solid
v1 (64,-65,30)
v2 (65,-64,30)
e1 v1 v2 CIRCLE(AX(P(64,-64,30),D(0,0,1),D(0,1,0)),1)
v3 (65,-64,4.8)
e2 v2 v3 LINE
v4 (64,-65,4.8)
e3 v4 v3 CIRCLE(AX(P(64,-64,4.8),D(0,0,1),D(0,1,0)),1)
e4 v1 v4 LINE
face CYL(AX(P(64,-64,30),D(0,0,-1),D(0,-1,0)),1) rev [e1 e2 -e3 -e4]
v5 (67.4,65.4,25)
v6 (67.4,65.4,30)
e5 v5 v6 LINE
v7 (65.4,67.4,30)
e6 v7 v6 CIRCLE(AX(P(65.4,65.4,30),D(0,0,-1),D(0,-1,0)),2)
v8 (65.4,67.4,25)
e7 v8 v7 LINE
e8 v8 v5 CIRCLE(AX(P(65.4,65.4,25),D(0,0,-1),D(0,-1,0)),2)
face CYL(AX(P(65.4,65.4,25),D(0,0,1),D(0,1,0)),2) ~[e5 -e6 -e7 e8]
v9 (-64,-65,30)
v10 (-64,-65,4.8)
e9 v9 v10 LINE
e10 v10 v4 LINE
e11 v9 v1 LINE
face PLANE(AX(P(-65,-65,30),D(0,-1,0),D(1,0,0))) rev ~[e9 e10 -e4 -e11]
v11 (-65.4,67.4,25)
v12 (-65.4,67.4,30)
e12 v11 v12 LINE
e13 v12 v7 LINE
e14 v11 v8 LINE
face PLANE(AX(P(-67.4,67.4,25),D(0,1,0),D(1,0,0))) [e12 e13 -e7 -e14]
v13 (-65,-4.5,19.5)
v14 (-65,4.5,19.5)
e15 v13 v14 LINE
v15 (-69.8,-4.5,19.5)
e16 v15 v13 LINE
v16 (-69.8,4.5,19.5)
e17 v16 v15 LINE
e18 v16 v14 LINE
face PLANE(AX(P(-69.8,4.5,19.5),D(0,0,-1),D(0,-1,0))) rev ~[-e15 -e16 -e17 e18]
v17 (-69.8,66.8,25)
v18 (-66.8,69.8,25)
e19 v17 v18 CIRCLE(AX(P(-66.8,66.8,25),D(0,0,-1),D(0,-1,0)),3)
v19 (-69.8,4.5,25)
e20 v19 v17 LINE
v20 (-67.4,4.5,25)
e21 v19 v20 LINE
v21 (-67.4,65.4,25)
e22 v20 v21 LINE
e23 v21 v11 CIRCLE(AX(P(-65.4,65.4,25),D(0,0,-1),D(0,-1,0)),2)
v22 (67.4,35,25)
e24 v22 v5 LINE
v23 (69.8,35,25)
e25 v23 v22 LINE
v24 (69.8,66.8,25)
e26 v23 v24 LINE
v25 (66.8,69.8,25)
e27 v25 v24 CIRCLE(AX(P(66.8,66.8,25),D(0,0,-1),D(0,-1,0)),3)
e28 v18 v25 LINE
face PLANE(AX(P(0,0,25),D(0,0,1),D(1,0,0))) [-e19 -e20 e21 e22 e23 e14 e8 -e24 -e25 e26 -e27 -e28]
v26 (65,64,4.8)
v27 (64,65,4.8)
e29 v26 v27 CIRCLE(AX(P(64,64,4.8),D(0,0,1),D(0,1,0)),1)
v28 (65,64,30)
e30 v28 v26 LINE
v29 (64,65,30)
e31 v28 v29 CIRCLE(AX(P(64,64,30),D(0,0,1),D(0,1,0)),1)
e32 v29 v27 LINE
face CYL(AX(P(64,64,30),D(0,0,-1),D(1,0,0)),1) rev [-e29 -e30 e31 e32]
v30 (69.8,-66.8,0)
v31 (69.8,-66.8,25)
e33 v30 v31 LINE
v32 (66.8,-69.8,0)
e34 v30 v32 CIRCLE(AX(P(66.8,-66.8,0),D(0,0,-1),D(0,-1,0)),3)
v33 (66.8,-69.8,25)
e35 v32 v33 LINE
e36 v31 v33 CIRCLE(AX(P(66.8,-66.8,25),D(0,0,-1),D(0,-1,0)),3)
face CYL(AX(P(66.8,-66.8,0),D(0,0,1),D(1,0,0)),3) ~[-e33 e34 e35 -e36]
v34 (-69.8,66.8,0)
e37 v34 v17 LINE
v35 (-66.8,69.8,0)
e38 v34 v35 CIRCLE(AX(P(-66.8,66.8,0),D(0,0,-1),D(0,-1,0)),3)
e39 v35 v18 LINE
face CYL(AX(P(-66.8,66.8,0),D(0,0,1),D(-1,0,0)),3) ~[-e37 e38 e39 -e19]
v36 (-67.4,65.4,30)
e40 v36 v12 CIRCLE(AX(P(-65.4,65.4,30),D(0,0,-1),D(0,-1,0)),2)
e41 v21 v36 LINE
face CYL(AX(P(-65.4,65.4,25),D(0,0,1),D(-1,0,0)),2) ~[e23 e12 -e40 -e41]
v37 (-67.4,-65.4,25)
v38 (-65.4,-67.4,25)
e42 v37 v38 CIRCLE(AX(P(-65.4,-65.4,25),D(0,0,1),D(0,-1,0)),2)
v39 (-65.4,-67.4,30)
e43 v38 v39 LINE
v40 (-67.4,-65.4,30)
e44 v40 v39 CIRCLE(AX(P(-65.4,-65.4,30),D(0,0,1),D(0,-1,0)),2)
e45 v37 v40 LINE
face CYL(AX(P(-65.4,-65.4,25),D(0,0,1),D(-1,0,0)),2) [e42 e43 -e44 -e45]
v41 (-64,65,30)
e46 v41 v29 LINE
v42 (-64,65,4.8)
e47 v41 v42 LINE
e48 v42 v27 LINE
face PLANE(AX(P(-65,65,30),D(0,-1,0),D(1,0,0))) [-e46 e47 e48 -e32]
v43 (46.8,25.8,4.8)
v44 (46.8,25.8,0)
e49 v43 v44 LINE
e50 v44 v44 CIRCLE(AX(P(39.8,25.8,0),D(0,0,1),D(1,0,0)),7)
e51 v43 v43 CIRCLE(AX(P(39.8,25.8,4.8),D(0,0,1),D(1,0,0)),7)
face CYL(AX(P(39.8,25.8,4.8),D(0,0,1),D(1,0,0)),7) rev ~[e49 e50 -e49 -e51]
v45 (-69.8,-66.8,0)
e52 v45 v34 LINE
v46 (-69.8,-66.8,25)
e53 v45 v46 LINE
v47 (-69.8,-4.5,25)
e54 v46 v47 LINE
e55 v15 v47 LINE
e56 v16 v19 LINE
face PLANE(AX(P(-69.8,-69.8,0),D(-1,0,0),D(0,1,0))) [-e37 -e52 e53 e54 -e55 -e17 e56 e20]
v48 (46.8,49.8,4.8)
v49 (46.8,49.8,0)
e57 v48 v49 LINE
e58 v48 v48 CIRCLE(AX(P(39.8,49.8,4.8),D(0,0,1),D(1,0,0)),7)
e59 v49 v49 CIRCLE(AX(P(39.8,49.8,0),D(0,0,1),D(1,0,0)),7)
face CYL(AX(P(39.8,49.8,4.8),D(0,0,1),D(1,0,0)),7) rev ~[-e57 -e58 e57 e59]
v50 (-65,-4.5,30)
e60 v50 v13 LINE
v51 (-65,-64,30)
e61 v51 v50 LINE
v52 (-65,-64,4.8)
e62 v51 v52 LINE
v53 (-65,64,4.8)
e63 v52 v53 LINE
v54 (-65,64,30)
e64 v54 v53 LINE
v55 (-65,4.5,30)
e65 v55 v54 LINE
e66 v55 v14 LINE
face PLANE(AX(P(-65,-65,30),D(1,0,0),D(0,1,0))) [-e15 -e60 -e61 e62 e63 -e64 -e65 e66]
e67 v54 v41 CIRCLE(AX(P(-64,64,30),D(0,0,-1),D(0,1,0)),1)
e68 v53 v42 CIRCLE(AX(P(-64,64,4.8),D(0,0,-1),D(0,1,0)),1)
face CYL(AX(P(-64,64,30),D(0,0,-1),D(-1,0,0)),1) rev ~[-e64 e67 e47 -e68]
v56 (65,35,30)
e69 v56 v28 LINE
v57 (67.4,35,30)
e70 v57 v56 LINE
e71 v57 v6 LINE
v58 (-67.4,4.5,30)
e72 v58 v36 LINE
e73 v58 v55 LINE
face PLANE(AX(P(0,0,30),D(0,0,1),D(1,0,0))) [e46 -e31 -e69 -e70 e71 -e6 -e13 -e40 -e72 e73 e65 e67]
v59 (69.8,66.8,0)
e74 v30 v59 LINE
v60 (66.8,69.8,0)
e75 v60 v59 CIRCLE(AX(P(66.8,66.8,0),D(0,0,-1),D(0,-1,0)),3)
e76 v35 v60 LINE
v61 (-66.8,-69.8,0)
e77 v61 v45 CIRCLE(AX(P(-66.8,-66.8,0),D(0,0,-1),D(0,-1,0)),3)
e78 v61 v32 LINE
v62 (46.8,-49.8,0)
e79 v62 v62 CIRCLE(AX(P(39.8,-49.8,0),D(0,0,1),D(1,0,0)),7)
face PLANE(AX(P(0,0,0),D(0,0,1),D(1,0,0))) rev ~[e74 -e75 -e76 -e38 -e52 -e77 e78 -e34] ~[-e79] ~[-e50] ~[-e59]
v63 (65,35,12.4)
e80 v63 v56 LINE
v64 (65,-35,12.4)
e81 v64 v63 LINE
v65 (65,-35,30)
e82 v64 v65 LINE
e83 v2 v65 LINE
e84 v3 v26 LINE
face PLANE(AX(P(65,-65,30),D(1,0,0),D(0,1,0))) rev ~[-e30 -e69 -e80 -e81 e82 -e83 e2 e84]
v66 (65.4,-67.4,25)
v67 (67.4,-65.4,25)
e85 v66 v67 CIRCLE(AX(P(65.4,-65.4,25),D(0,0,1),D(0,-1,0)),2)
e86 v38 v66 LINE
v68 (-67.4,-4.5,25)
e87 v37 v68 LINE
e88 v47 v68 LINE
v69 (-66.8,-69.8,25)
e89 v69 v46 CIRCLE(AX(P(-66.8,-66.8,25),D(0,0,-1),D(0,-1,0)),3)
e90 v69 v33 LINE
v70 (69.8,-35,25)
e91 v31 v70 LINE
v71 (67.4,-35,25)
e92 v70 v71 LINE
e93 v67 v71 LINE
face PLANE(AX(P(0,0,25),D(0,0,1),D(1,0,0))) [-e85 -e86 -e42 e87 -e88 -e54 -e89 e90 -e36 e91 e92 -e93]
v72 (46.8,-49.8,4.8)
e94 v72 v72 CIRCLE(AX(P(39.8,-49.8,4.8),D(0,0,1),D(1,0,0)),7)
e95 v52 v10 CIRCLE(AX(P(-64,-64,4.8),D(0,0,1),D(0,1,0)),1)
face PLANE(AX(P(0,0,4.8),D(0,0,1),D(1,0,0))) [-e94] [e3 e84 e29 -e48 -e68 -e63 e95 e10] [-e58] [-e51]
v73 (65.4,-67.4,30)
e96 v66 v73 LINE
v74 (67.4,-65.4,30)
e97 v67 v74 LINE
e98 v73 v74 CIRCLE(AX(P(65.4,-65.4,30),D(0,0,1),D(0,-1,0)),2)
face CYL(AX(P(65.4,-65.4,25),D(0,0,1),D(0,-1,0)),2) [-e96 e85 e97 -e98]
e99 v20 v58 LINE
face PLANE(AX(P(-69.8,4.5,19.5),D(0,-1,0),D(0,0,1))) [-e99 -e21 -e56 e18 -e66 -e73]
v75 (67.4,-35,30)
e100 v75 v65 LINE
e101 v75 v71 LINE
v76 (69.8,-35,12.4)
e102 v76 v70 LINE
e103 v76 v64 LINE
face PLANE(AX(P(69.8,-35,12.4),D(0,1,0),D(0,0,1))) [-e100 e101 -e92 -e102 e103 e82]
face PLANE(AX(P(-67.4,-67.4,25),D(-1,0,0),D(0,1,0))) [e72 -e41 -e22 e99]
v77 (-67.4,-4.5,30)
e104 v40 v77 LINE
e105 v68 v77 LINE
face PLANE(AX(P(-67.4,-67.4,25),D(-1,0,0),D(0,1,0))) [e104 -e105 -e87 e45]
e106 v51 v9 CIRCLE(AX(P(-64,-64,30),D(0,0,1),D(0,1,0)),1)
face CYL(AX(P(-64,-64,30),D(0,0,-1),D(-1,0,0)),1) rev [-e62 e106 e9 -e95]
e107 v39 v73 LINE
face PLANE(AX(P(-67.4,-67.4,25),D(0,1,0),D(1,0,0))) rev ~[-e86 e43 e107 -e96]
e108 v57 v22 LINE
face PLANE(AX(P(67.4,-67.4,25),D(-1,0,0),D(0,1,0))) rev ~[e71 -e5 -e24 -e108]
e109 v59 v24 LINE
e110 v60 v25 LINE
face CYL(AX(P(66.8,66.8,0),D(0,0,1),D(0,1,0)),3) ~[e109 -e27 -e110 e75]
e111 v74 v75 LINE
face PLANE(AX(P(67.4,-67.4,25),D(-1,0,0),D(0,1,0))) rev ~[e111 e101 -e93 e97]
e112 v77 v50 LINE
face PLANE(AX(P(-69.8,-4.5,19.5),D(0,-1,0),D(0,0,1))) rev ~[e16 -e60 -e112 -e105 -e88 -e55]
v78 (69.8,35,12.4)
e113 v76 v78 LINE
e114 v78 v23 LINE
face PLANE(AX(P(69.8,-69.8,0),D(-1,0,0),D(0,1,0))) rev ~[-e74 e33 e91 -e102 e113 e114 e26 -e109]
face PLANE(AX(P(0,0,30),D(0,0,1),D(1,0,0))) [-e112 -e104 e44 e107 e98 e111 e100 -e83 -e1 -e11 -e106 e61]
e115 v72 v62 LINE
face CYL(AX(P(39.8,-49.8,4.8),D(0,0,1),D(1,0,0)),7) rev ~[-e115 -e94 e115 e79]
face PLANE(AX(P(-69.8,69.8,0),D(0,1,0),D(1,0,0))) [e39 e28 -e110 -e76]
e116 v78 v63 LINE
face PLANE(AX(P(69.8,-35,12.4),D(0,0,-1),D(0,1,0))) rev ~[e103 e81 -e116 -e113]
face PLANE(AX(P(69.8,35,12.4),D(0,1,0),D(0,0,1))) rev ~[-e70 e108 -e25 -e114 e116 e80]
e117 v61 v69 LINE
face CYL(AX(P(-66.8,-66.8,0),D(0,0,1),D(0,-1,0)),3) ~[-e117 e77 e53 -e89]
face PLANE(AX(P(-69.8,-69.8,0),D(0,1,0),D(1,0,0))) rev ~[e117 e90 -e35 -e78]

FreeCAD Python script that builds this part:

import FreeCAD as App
import Part
import Sketcher
from FreeCAD import Vector
Q = App.Units.Quantity


def edges_at(feature, points):
    """Names of the edges that pass closest to the given points."""
    edges = feature.Shape.Edges
    near = lambda p: min(range(len(edges)), key=lambda i: edges[i].distToShape(Part.Vertex(*p))[0])
    return sorted({f"Edge{near(p) + 1}" for p in points})

doc = App.newDocument("Part")
body = doc.addObject("PartDesign::Body", "Body")

sketch1 = body.newObject("Sketcher::SketchObject", "Sketch")
sketch1.AttachmentSupport = (doc.getObject("XY_Plane"), [""])
sketch1.MapMode = "FlatFace"
sketch1.addGeometry([
    Part.LineSegment(Vector(-70, 70, 0), Vector(-70, -70, 0)),
    Part.LineSegment(Vector(-70, -70, 0), Vector(70, -70, 0)),
    Part.LineSegment(Vector(70, -70, 0), Vector(70, 70, 0)),
    Part.LineSegment(Vector(70, 70, 0), Vector(-70, 70, 0)),
], False)
sketch1.addConstraint([
    Sketcher.Constraint("Coincident", 0, 2, 1, 1),
    Sketcher.Constraint("Coincident", 1, 2, 2, 1),
    Sketcher.Constraint("Coincident", 2, 2, 3, 1),
    Sketcher.Constraint("Coincident", 3, 2, 0, 1),
    Sketcher.Constraint("Vertical", 0),
    Sketcher.Constraint("Horizontal", 1),
    Sketcher.Constraint("Vertical", 2),
    Sketcher.Constraint("Horizontal", 3),
    Sketcher.Constraint("Symmetric", 0, 2, 2, 2, -1, 1),
    Sketcher.Constraint("Equal", 3, 0),
    Sketcher.Constraint("DistanceX", 1, 1, 1, 2, Q("139.6 mm")),
])
pad1 = body.newObject("PartDesign::Pad", "Pad")
pad1.Profile = sketch1
pad1.Length = 25

sketch2 = body.newObject("Sketcher::SketchObject", "Sketch001")
sketch2.AttachmentSupport = (doc.getObject("XY_Plane"), [""])
sketch2.MapMode = "FlatFace"
sketch2.AttachmentOffset = App.Placement(Vector(0, 0, 25), App.Rotation())
sketch2.addGeometry([
    Part.LineSegment(Vector(-67, 67, 0), Vector(-67, -67, 0)),
    Part.LineSegment(Vector(-67, -67, 0), Vector(67, -67, 0)),
    Part.LineSegment(Vector(67, -67, 0), Vector(67, 67, 0)),
    Part.LineSegment(Vector(67, 67, 0), Vector(-67, 67, 0)),
], False)
sketch2.addConstraint([
    Sketcher.Constraint("Coincident", 0, 2, 1, 1),
    Sketcher.Constraint("Coincident", 1, 2, 2, 1),
    Sketcher.Constraint("Coincident", 2, 2, 3, 1),
    Sketcher.Constraint("Coincident", 3, 2, 0, 1),
    Sketcher.Constraint("Vertical", 0),
    Sketcher.Constraint("Horizontal", 1),
    Sketcher.Constraint("Vertical", 2),
    Sketcher.Constraint("Horizontal", 3),
    Sketcher.Constraint("Symmetric", 0, 2, 2, 2, -1, 1),
    Sketcher.Constraint("Equal", 3, 0),
    Sketcher.Constraint("DistanceX", 1, 1, 1, 2, Q("134.8 mm")),
])
pad2 = body.newObject("PartDesign::Pad", "Pad001")
pad2.Profile = sketch2
pad2.Length = 5

sketch3 = body.newObject("Sketcher::SketchObject", "Sketch002")
sketch3.AttachmentSupport = (doc.getObject("XY_Plane"), [""])
sketch3.MapMode = "FlatFace"
sketch3.AttachmentOffset = App.Placement(Vector(0, 0, 30), App.Rotation())
sketch3.addGeometry([
    Part.LineSegment(Vector(-65, 65, 0), Vector(-65, -65, 0)),
    Part.LineSegment(Vector(-65, -65, 0), Vector(65, -65, 0)),
    Part.LineSegment(Vector(65, -65, 0), Vector(65, 65, 0)),
    Part.LineSegment(Vector(65, 65, 0), Vector(-65, 65, 0)),
], False)
sketch3.addConstraint([
    Sketcher.Constraint("Coincident", 0, 2, 1, 1),
    Sketcher.Constraint("Coincident", 1, 2, 2, 1),
    Sketcher.Constraint("Coincident", 2, 2, 3, 1),
    Sketcher.Constraint("Coincident", 3, 2, 0, 1),
    Sketcher.Constraint("Vertical", 0),
    Sketcher.Constraint("Horizontal", 1),
    Sketcher.Constraint("Vertical", 2),
    Sketcher.Constraint("Horizontal", 3),
    Sketcher.Constraint("Symmetric", 0, 2, 2, 2, -1, 1),
    Sketcher.Constraint("Equal", 3, 0),
    Sketcher.Constraint("DistanceX", 1, 1, 1, 2, Q("130 mm")),
])
pocket1 = body.newObject("PartDesign::Pocket", "Pocket")
pocket1.Profile = sketch3
pocket1.Length = 25.2

sketch4 = body.newObject("Sketcher::SketchObject", "Sketch003")
sketch4.AttachmentSupport = (doc.getObject("YZ_Plane"), [""])
sketch4.MapMode = "FlatFace"
sketch4.AttachmentOffset = App.Placement(Vector(0, 0, 69.8), App.Rotation())
sketch4.addGeometry([
    Part.LineSegment(Vector(-35, 30, 0), Vector(-35, 12, 0)),
    Part.LineSegment(Vector(-35, 12, 0), Vector(35, 12, 0)),
    Part.LineSegment(Vector(35, 12, 0), Vector(35, 30, 0)),
    Part.LineSegment(Vector(35, 30, 0), Vector(-35, 30, 0)),
], False)
sketch4.addConstraint([
    Sketcher.Constraint("Coincident", 0, 2, 1, 1),
    Sketcher.Constraint("Coincident", 1, 2, 2, 1),
    Sketcher.Constraint("Coincident", 2, 2, 3, 1),
    Sketcher.Constraint("Coincident", 3, 2, 0, 1),
    Sketcher.Constraint("Vertical", 0),
    Sketcher.Constraint("Horizontal", 1),
    Sketcher.Constraint("Vertical", 2),
    Sketcher.Constraint("Horizontal", 3),
    Sketcher.Constraint("DistanceX", 1, 1, 1, 2, Q("70 mm")),
    Sketcher.Constraint("DistanceY", 0, 2, 0, 1, Q("17.6 mm")),
    Sketcher.Constraint("DistanceX", 0, 2, -1, 1, Q("35 mm")),
    Sketcher.Constraint("DistanceY", -1, 1, 2, 2, Q("30 mm")),
])
pocket2 = body.newObject("PartDesign::Pocket", "Pocket001")
pocket2.Profile = sketch4
pocket2.Length = 5

sketch5 = body.newObject("Sketcher::SketchObject", "Sketch004")
sketch5.AttachmentSupport = (doc.getObject("YZ_Plane"), [""])
sketch5.MapMode = "FlatFace"
sketch5.AttachmentOffset = App.Placement(Vector(0, 0, -69.8), App.Rotation())
sketch5.addGeometry([
    Part.LineSegment(Vector(4, 30, 0), Vector(4, 20, 0)),
    Part.LineSegment(Vector(4, 20, 0), Vector(-4, 20, 0)),
    Part.LineSegment(Vector(-4, 20, 0), Vector(-4, 30, 0)),
    Part.LineSegment(Vector(-4, 30, 0), Vector(4, 30, 0)),
], False)
sketch5.addConstraint([
    Sketcher.Constraint("Coincident", 0, 2, 1, 1),
    Sketcher.Constraint("Coincident", 1, 2, 2, 1),
    Sketcher.Constraint("Coincident", 2, 2, 3, 1),
    Sketcher.Constraint("Coincident", 3, 2, 0, 1),
    Sketcher.Constraint("Vertical", 0),
    Sketcher.Constraint("Horizontal", 1),
    Sketcher.Constraint("Vertical", 2),
    Sketcher.Constraint("Horizontal", 3),
    Sketcher.Constraint("DistanceX", 1, 2, 1, 1, Q("9 mm")),
    Sketcher.Constraint("DistanceY", 0, 2, 0, 1, Q("10.5 mm")),
    Sketcher.Constraint("DistanceY", -1, 1, 2, 2, Q("30 mm")),
    Sketcher.Constraint("DistanceX", -1, 1, 0, 2, Q("4.5 mm")),
])
pocket3 = body.newObject("PartDesign::Pocket", "Pocket002")
pocket3.Profile = sketch5
pocket3.Length = 5
pocket3.Reversed = True

sketch6 = body.newObject("Sketcher::SketchObject", "Sketch005")
sketch6.AttachmentSupport = (doc.getObject("XY_Plane"), [""])
sketch6.MapMode = "FlatFace"
sketch6.AttachmentOffset = App.Placement(Vector(0, 0, 4.8), App.Rotation())
sketch6.addGeometry([
    Part.Circle(Vector(40, 50, 0), Vector(0, 0, 1), 7),
    Part.Circle(Vector(40, 26, 0), Vector(0, 0, 1), 7),
    Part.Circle(Vector(40, -50, 0), Vector(0, 0, 1), 7),
], False)
sketch6.addConstraint([
    Sketcher.Constraint("Equal", 0, 1),
    Sketcher.Constraint("Equal", 1, 2),
    Sketcher.Constraint("Symmetric", 0, 3, 2, 3, -1),
    Sketcher.Constraint("Vertical", 0, 3, 1, 3),
    Sketcher.Constraint("Diameter", 0, Q("14 mm")),
    Sketcher.Constraint("DistanceY", 1, 3, 0, 3, Q("24 mm")),
    Sketcher.Constraint("DistanceX", -1, 1, 0, 3, Q("39.8 mm")),
    Sketcher.Constraint("DistanceY", -1, 1, 0, 3, Q("49.8 mm")),
])
pocket4 = body.newObject("PartDesign::Pocket", "Pocket003")
pocket4.Profile = sketch6
pocket4.Length = 25
doc.recompute()

fillet = body.newObject("PartDesign::Fillet", "Fillet")
fillet.Base = (pocket4, edges_at(pocket4, [(-69.8, 69.8, 12.5)]))
fillet.Radius = 3
doc.recompute()

fillet2 = body.newObject("PartDesign::Fillet", "Fillet001")
fillet2.Base = (fillet, edges_at(fillet, [(69.8, 69.8, 12.5)]))
fillet2.Radius = 3
doc.recompute()

fillet3 = body.newObject("PartDesign::Fillet", "Fillet002")
fillet3.Base = (fillet2, edges_at(fillet2, [(69.8, -69.8, 12.5)]))
fillet3.Radius = 3
doc.recompute()

fillet4 = body.newObject("PartDesign::Fillet", "Fillet003")
fillet4.Base = (fillet3, edges_at(fillet3, [(-69.8, -69.8, 12.5)]))
fillet4.Radius = 3
doc.recompute()

fillet5 = body.newObject("PartDesign::Fillet", "Fillet004")
fillet5.Base = (fillet4, edges_at(fillet4, [(-67.4, -67.4, 27.5)]))
fillet5.Radius = 2
doc.recompute()

fillet6 = body.newObject("PartDesign::Fillet", "Fillet005")
fillet6.Base = (fillet5, edges_at(fillet5, [(-67.4, 67.4, 27.5)]))
fillet6.Radius = 2
doc.recompute()

fillet7 = body.newObject("PartDesign::Fillet", "Fillet006")
fillet7.Base = (fillet6, edges_at(fillet6, [(67.4, 67.4, 27.5)]))
fillet7.Radius = 2
doc.recompute()

fillet8 = body.newObject("PartDesign::Fillet", "Fillet007")
fillet8.Base = (fillet7, edges_at(fillet7, [(67.4, -67.4, 27.5)]))
fillet8.Radius = 2
doc.recompute()

fillet9 = body.newObject("PartDesign::Fillet", "Fillet008")
fillet9.Base = (fillet8, edges_at(fillet8, [(-65, 65, 17.4)]))
fillet9.Radius = 1
doc.recompute()

fillet10 = body.newObject("PartDesign::Fillet", "Fillet009")
fillet10.Base = (fillet9, edges_at(fillet9, [(-65, -65, 17.4)]))
fillet10.Radius = 1
doc.recompute()

fillet11 = body.newObject("PartDesign::Fillet", "Fillet010")
fillet11.Base = (fillet10, edges_at(fillet10, [(65, -65, 17.4)]))
fillet11.Radius = 1
doc.recompute()

fillet12 = body.newObject("PartDesign::Fillet", "Fillet011")
fillet12.Base = (fillet11, edges_at(fillet11, [(65, 65, 17.4)]))
fillet12.Radius = 1

doc.recompute()
